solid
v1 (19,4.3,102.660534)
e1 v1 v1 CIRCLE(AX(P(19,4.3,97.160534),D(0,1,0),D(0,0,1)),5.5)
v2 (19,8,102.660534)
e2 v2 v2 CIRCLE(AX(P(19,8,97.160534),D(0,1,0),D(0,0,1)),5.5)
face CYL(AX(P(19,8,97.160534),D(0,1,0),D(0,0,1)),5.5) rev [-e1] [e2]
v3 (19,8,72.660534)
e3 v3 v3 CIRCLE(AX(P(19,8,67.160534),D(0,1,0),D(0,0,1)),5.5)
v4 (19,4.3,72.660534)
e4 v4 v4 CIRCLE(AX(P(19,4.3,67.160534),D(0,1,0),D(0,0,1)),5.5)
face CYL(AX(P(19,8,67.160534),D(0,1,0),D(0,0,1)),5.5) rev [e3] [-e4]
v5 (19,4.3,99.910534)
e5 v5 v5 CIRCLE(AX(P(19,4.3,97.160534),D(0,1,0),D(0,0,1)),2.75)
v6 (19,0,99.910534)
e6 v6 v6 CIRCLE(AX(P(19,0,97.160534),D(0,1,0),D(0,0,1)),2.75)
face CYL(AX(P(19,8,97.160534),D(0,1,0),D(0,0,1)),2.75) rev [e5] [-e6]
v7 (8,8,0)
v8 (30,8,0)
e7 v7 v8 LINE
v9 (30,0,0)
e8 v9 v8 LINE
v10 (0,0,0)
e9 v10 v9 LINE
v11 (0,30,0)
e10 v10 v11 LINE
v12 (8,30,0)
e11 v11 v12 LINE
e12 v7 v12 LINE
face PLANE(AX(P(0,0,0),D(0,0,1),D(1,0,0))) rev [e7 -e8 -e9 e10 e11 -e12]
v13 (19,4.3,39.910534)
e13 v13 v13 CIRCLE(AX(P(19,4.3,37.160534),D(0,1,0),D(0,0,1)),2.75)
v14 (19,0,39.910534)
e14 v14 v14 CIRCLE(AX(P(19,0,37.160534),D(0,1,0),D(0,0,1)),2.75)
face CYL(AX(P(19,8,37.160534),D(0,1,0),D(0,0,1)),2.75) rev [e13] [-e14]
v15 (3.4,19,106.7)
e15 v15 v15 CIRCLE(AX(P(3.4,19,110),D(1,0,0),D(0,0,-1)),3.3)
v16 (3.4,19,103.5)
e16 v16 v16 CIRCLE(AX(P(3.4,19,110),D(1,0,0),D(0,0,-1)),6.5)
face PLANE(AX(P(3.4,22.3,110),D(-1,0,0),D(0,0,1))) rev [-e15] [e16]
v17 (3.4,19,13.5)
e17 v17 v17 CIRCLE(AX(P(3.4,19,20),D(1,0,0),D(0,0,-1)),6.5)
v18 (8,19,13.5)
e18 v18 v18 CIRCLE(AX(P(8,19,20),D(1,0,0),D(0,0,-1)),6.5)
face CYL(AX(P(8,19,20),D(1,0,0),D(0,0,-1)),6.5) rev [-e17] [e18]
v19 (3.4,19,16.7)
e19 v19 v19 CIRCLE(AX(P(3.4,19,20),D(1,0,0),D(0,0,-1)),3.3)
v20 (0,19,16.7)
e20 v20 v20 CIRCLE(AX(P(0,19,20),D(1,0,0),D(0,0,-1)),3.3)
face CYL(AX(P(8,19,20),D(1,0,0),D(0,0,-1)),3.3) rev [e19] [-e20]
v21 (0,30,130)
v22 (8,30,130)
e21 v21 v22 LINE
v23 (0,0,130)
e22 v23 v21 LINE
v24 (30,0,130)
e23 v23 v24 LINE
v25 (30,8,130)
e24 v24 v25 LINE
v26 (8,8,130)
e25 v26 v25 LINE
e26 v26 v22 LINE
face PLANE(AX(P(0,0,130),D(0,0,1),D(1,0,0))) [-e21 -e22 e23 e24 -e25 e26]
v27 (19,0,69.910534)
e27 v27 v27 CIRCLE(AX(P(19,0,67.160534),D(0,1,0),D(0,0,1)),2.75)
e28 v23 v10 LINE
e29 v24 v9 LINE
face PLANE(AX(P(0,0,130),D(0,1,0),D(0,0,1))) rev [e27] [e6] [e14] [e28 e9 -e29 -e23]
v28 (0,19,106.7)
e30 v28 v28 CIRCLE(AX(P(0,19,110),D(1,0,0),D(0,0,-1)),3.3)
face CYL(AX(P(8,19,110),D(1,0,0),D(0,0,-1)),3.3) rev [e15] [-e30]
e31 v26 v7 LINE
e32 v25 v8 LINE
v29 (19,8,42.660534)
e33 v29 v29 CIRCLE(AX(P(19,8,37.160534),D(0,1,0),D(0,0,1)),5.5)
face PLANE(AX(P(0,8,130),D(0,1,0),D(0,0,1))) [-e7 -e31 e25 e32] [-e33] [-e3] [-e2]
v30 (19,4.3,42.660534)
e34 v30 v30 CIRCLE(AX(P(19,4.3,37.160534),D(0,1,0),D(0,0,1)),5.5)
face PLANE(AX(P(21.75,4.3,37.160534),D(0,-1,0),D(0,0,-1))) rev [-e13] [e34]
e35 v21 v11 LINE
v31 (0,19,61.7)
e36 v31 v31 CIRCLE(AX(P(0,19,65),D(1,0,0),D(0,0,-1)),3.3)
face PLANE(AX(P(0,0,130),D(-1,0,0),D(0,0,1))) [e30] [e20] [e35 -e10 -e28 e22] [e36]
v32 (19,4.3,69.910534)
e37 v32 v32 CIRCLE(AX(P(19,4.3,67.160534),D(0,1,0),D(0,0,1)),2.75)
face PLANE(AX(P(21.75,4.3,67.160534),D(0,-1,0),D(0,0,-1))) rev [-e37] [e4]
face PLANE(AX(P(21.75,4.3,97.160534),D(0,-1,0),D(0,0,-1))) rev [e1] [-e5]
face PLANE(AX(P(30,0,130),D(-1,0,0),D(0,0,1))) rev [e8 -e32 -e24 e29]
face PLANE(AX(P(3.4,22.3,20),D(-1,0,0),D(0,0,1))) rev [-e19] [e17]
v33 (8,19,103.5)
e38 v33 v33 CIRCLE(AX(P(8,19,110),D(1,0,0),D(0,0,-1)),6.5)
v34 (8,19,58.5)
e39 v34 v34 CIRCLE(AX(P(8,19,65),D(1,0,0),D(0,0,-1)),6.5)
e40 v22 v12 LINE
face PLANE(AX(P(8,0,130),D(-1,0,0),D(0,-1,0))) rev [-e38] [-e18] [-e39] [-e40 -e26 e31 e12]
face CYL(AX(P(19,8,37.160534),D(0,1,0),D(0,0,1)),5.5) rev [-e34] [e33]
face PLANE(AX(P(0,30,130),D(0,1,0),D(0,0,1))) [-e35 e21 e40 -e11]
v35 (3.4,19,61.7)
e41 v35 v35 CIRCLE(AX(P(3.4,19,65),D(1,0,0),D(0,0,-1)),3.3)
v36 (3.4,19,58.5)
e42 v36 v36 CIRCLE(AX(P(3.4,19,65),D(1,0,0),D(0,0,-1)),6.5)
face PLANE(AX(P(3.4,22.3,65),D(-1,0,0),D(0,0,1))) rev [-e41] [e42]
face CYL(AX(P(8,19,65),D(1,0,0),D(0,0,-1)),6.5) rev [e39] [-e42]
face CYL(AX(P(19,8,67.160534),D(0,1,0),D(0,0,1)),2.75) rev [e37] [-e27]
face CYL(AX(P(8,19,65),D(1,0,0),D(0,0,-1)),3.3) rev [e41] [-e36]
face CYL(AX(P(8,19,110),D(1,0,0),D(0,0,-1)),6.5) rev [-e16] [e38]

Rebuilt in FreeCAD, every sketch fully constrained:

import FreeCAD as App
import Part
import Sketcher

V = App.Vector
Q = App.Units.Quantity

doc = App.newDocument("Part")
body = doc.addObject("PartDesign::Body", "Body")

sketch1 = body.newObject("Sketcher::SketchObject", "Sketch")
sketch1.AttachmentSupport = (doc.getObject("XY_Plane"), [""])
sketch1.MapMode = "FlatFace"
sketch1.addGeometry([
    Part.LineSegment(V(0, 0, 0), V(30, 0, 0)),
    Part.LineSegment(V(30, 0, 0), V(30, 8, 0)),
    Part.LineSegment(V(30, 8, 0), V(8, 8, 0)),
    Part.LineSegment(V(8, 8, 0), V(8, 30, 0)),
    Part.LineSegment(V(8, 30, 0), V(0, 30, 0)),
    Part.LineSegment(V(0, 30, 0), V(0, 0, 0)),
], False)
sketch1.addConstraint([
    Sketcher.Constraint("Coincident", 0, 2, 1, 1),
    Sketcher.Constraint("Coincident", 1, 2, 2, 1),
    Sketcher.Constraint("Coincident", 2, 2, 3, 1),
    Sketcher.Constraint("Coincident", 3, 2, 4, 1),
    Sketcher.Constraint("Coincident", 4, 2, 5, 1),
    Sketcher.Constraint("Coincident", 5, 2, 0, 1),
    Sketcher.Constraint("Horizontal", 0),
    Sketcher.Constraint("Vertical", 1),
    Sketcher.Constraint("Horizontal", 2),
    Sketcher.Constraint("Vertical", 3),
    Sketcher.Constraint("Horizontal", 4),
    Sketcher.Constraint("Vertical", 5),
    Sketcher.Constraint("Coincident", 5, 2, -1, 1),
    Sketcher.Constraint("Equal", 4, 1),
    Sketcher.Constraint("Equal", 2, 3),
    Sketcher.Constraint("DistanceX", 0, 1, 0, 2, Q("30 mm")),
    Sketcher.Constraint("DistanceX", 2, 2, 2, 1, Q("22 mm")),
])
pad1 = body.newObject("PartDesign::Pad", "Pad")
pad1.Profile = sketch1
pad1.Length = 130

sketch2 = body.newObject("Sketcher::SketchObject", "Sketch001")
sketch2.AttachmentSupport = (doc.getObject("XZ_Plane"), [""])
sketch2.MapMode = "FlatFace"
sketch2.AttachmentOffset = App.Placement(V(0, 0, -8), App.Rotation())
sketch2.addGeometry([
    Part.Circle(V(19, 67.2, 0), V(0, 0, 1), 2.8),
    Part.Circle(V(19, 37.2, 0), V(0, 0, 1), 2.8),
    Part.Circle(V(19, 97.2, 0), V(0, 0, 1), 2.8),
], False)
sketch2.addConstraint([
    Sketcher.Constraint("Equal", 0, 1),
    Sketcher.Constraint("Equal", 1, 2),
    Sketcher.Constraint("Vertical", 0, 3, 1, 3),
    Sketcher.Constraint("Vertical", 1, 3, 2, 3),
    Sketcher.Constraint("Diameter", 0, Q("5.5 mm")),
    Sketcher.Constraint("DistanceX", -1, 1, 0, 3, Q("19 mm")),
    Sketcher.Constraint("DistanceY", 1, 3, 0, 3, Q("30 mm")),
    Sketcher.Constraint("DistanceY", 0, 3, 2, 3, Q("30 mm")),
    Sketcher.Constraint("DistanceY", -1, 1, 0, 3, Q("67.160534 mm")),
])
doc.recompute()
hole = body.newObject("PartDesign::Hole", "Hole")
hole.Profile = sketch2
hole.ThreadType = "None"
hole.Diameter = 5.5
hole.DepthType = "ThroughAll"
hole.HoleCutType = "Counterbore"
hole.HoleCutDiameter = 11
hole.HoleCutDepth = 3.7
hole.Reversed = True

sketch3 = body.newObject("Sketcher::SketchObject", "Sketch002")
sketch3.AttachmentSupport = (doc.getObject("YZ_Plane"), [""])
sketch3.MapMode = "FlatFace"
sketch3.AttachmentOffset = App.Placement(V(0, 0, 8), App.Rotation())
sketch3.addGeometry([
    Part.Circle(V(19, 110, 0), V(0, 0, 1), 3.3),
    Part.Circle(V(19, 65, 0), V(0, 0, 1), 3.3),
    Part.Circle(V(19, 20, 0), V(0, 0, 1), 3.3),
], False)
sketch3.addConstraint([
    Sketcher.Constraint("Equal", 0, 1),
    Sketcher.Constraint("Equal", 1, 2),
    Sketcher.Constraint("Vertical", 0, 3, 1, 3),
    Sketcher.Constraint("Vertical", 1, 3, 2, 3),
    Sketcher.Constraint("Diameter", 0, Q("6.6 mm")),
    Sketcher.Constraint("DistanceX", -1, 1, 0, 3, Q("19 mm")),
    Sketcher.Constraint("DistanceY", -1, 1, 0, 3, Q("110 mm")),
    Sketcher.Constraint("DistanceY", -1, 1, 1, 3, Q("65 mm")),
    Sketcher.Constraint("DistanceY", -1, 1, 2, 3, Q("20 mm")),
])
doc.recompute()
hole2 = body.newObject("PartDesign::Hole", "Hole001")
hole2.Profile = sketch3
hole2.ThreadType = "None"
hole2.Diameter = 6.6
hole2.DepthType = "ThroughAll"
hole2.HoleCutType = "Counterbore"
hole2.HoleCutDiameter = 13
hole2.HoleCutDepth = 4.6

doc.recompute()
